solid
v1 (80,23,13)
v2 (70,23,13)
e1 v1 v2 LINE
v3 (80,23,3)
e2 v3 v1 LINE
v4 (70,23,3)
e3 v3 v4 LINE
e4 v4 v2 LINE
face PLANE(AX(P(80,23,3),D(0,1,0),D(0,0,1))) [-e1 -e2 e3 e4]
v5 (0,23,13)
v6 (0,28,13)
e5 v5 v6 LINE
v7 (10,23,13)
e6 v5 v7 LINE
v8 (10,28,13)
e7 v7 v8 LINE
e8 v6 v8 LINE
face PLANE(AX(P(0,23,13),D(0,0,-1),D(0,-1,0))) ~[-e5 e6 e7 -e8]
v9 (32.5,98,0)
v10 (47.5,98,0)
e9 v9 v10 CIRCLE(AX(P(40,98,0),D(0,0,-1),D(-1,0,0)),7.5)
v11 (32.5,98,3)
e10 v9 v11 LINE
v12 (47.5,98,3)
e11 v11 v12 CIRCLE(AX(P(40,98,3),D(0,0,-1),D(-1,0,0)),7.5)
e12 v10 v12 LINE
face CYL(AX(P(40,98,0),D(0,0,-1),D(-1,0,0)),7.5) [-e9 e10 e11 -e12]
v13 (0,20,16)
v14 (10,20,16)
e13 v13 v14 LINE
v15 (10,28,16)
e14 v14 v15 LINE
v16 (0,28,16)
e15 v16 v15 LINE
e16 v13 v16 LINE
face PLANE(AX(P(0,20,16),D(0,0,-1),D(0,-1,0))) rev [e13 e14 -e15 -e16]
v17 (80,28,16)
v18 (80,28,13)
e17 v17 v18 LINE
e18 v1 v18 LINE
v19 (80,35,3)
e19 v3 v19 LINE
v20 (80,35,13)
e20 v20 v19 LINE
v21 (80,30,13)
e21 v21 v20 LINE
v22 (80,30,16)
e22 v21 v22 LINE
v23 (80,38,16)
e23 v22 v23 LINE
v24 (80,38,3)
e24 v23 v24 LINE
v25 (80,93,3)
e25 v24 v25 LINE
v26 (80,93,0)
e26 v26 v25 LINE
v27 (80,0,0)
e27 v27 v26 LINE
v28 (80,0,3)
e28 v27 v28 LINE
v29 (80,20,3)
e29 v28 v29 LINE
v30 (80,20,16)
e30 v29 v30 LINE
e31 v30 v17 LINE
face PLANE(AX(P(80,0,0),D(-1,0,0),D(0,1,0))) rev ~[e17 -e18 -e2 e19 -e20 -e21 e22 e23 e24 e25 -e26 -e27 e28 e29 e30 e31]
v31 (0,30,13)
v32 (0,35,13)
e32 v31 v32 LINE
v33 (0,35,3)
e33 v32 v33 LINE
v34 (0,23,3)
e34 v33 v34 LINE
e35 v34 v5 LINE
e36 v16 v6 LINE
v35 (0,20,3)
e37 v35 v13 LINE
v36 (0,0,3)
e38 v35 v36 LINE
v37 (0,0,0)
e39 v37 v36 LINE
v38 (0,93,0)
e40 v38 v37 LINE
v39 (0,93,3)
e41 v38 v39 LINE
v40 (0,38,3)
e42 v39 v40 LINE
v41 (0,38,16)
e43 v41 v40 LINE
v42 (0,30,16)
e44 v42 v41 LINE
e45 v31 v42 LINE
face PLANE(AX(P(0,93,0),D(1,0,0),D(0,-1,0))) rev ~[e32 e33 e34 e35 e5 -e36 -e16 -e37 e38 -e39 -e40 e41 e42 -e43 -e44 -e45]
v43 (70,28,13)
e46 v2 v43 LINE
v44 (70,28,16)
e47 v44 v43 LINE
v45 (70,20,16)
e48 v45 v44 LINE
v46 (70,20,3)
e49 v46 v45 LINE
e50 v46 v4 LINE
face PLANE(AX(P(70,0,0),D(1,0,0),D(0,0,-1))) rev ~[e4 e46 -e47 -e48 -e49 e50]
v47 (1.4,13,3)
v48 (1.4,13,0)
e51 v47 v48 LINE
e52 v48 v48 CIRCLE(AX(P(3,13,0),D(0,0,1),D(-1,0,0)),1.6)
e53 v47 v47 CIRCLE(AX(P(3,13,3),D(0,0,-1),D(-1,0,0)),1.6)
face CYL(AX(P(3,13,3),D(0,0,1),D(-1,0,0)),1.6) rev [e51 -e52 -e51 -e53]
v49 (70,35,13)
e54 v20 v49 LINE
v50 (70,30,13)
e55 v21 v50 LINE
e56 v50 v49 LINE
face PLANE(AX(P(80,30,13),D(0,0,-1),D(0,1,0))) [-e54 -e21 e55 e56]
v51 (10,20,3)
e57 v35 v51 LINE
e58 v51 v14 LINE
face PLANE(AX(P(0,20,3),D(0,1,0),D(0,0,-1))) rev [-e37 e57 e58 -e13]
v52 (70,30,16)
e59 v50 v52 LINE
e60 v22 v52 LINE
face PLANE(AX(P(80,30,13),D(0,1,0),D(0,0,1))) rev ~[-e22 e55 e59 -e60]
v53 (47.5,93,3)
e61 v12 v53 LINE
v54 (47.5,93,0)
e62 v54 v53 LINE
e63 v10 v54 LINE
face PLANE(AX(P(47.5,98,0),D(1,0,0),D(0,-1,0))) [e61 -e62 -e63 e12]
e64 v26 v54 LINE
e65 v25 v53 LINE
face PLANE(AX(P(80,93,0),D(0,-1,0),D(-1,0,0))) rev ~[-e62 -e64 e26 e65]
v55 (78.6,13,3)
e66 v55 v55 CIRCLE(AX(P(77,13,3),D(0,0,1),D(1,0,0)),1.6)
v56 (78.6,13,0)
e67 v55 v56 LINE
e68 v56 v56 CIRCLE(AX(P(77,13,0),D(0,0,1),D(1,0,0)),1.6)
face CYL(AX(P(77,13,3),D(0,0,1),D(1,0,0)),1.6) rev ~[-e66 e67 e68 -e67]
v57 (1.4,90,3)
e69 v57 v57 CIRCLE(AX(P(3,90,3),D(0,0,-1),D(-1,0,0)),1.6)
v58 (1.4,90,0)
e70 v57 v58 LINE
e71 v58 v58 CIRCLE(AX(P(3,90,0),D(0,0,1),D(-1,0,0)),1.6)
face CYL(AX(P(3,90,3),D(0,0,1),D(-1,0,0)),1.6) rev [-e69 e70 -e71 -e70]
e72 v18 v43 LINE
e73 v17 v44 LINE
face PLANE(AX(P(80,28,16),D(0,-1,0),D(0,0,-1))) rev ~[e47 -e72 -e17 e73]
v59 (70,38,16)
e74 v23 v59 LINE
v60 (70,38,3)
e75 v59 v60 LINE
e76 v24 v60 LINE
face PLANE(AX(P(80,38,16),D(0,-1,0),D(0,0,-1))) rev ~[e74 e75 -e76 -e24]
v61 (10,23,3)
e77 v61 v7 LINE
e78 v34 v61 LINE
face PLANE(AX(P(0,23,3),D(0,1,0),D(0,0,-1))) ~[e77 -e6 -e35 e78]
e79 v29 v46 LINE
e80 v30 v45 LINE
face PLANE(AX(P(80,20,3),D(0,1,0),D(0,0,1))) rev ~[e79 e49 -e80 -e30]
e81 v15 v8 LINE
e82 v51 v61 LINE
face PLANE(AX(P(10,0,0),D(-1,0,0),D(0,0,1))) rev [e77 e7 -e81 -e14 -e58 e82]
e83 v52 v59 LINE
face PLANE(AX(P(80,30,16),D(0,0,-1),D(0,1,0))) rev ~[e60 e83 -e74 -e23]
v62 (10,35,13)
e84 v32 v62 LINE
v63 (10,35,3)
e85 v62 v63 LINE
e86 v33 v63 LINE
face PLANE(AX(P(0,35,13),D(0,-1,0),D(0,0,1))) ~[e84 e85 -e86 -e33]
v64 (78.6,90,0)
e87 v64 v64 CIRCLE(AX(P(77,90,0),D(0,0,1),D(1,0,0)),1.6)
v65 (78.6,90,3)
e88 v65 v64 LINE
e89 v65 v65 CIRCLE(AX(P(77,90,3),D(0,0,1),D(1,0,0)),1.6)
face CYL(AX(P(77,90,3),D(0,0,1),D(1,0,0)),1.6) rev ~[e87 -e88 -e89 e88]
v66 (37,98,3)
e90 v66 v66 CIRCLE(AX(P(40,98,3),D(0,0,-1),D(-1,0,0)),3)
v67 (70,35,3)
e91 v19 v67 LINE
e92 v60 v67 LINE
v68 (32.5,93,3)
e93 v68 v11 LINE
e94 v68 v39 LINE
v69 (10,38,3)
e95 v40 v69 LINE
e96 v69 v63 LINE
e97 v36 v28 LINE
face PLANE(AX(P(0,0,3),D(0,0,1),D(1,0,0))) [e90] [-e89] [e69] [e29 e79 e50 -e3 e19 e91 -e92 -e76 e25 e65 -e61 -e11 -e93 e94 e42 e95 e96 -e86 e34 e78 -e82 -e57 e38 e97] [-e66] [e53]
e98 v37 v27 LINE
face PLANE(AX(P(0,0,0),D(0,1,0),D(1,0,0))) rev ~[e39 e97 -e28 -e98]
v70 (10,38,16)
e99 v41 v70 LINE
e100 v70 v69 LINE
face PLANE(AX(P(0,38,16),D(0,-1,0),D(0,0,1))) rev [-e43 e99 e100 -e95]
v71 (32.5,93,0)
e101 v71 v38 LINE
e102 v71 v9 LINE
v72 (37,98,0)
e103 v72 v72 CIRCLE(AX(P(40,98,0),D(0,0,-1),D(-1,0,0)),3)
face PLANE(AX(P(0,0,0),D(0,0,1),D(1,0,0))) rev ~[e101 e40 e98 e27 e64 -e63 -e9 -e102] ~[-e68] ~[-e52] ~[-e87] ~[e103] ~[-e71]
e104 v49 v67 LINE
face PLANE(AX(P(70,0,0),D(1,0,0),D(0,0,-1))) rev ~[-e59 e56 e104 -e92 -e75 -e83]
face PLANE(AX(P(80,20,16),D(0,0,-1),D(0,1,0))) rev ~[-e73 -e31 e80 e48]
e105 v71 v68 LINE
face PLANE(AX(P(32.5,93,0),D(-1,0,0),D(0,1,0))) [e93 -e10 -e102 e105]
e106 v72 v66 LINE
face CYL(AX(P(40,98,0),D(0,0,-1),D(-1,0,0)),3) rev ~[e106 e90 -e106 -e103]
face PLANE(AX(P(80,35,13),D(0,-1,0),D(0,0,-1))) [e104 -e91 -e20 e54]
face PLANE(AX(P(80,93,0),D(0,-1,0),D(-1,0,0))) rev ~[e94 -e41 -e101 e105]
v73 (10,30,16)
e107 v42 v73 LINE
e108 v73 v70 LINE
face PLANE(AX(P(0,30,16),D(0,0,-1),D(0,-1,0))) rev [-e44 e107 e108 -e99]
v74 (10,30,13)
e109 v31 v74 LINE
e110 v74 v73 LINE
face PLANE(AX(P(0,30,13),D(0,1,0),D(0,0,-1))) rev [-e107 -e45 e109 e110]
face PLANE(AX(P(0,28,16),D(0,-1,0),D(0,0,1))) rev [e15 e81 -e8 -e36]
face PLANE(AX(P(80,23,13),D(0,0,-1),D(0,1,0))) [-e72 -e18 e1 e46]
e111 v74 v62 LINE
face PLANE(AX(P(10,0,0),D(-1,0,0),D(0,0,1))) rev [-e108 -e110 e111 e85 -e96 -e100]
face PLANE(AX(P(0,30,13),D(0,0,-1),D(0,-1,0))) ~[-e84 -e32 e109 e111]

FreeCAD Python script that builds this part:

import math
import FreeCAD as App
import Part
import Sketcher
Q = App.Units.Quantity


def add_polygon(sketch, points):
    """Adds a closed chain of lines whose ends are joined by coincident constraints."""
    first, n = sketch.GeometryCount, len(points)
    for a, b in zip(points, points[1:] + points[:1]):
        sketch.addGeometry(Part.LineSegment(App.Vector(*a, 0), App.Vector(*b, 0)), False)
    for i in range(n):
        sketch.addConstraint(Sketcher.Constraint("Coincident", first + i, 2, first + (i + 1) % n, 1))

doc = App.newDocument("Part")
params = doc.addObject("Spreadsheet::Sheet", "Params")
for row, (alias, value) in enumerate([
    ("sketch1_width", "80 mm"),
    ("sketch1_height", "93 mm"),
    ("pad1_length", "3 mm"),
    ("sketch2_width", "3 mm"),
    ("sketch2_width2", "5 mm"),
    ("sketch2_height", "10 mm"),
    ("pad2_length", "10 mm"),
    ("sketch3_diameter", "3.2 mm"),
    ("sketch4_diameter", "6 mm"),
    ("sketch4_radius", "7.5 mm"),
    ("sketch4_height", "5 mm"),
    ("pad3_length", "3 mm"),
], start=1):
    params.set(f"A{row}", alias)
    params.set(f"B{row}", "=" + value)
    params.setAlias(f"B{row}", alias)

body = doc.addObject("PartDesign::Body", "Body")

# Sketch on XY plane
sketch1 = body.newObject("Sketcher::SketchObject", "Sketch")
sketch1.AttachmentSupport = (doc.getObject("XY_Plane"), [""])
sketch1.MapMode = "FlatFace"
add_polygon(sketch1, [(0, 93), (0, 0), (80, 0), (80, 93)])  # lines 0-3
sketch1.addConstraint(Sketcher.Constraint("Vertical", 0))
sketch1.addConstraint(Sketcher.Constraint("Horizontal", 1))
sketch1.addConstraint(Sketcher.Constraint("Vertical", 2))
sketch1.addConstraint(Sketcher.Constraint("Horizontal", 3))
sketch1.addConstraint(Sketcher.Constraint("Coincident", 0, 2, -1, 1))
sketch1.addConstraint(Sketcher.Constraint("DistanceX", 1, 1, 1, 2, Q("80 mm")))
sketch1.addConstraint(Sketcher.Constraint("DistanceY", 0, 2, 0, 1, Q("93 mm")))
sketch1.setExpression("Constraints[9]", "Params.sketch1_width")
sketch1.setExpression("Constraints[10]", "Params.sketch1_height")
pad1 = body.newObject("PartDesign::Pad", "Pad")
pad1.Profile = sketch1
pad1.setExpression("Length", "Params.pad1_length")

# Sketch on YZ plane
sketch2 = body.newObject("Sketcher::SketchObject", "Sketch001")
sketch2.AttachmentSupport = (doc.getObject("YZ_Plane"), [""])
sketch2.MapMode = "FlatFace"
sketch2.AttachmentOffset = App.Placement(App.Vector(0, 0, 80), App.Rotation())
add_polygon(sketch2, [(20, 16), (20, 3), (23, 3), (23, 13), (28, 13), (28, 16)])  # lines 0-5
add_polygon(sketch2, [(38, 3), (38, 16), (30, 16), (30, 13), (35, 13), (35, 3)])  # lines 6-11
sketch2.addConstraint(Sketcher.Constraint("Vertical", 0))
sketch2.addConstraint(Sketcher.Constraint("Horizontal", 1))
sketch2.addConstraint(Sketcher.Constraint("Vertical", 2))
sketch2.addConstraint(Sketcher.Constraint("Horizontal", 3))
sketch2.addConstraint(Sketcher.Constraint("Vertical", 4))
sketch2.addConstraint(Sketcher.Constraint("Horizontal", 5))
sketch2.addConstraint(Sketcher.Constraint("Vertical", 6))
sketch2.addConstraint(Sketcher.Constraint("Horizontal", 7))
sketch2.addConstraint(Sketcher.Constraint("Vertical", 8))
sketch2.addConstraint(Sketcher.Constraint("Horizontal", 9))
sketch2.addConstraint(Sketcher.Constraint("Vertical", 10))
sketch2.addConstraint(Sketcher.Constraint("Horizontal", 11))
sketch2.addConstraint(Sketcher.Constraint("Horizontal", 5, 2, 6, 2))
sketch2.addConstraint(Sketcher.Constraint("Horizontal", 3, 2, 8, 2))
sketch2.addConstraint(Sketcher.Constraint("Horizontal", 1, 2, 10, 2))
sketch2.addConstraint(Sketcher.Constraint("Equal", 5, 7))
sketch2.addConstraint(Sketcher.Constraint("Equal", 3, 9))
sketch2.addConstraint(Sketcher.Constraint("Equal", 11, 4))
sketch2.addConstraint(Sketcher.Constraint("DistanceX", 1, 1, 1, 2, Q("3 mm")))
sketch2.addConstraint(Sketcher.Constraint("DistanceX", 3, 1, 3, 2, Q("5 mm")))
sketch2.addConstraint(Sketcher.Constraint("DistanceY", 2, 1, 2, 2, Q("10 mm")))
sketch2.addConstraint(Sketcher.Constraint("DistanceX", -1, 1, 0, 2, Q("20 mm")))
sketch2.addConstraint(Sketcher.Constraint("DistanceY", -1, 1, 0, 2, Q("3 mm")))
sketch2.addConstraint(Sketcher.Constraint("DistanceX", 4, 2, 6, 2, Q("10 mm")))
sketch2.setExpression("Constraints[30]", "Params.sketch2_width")
sketch2.setExpression("Constraints[31]", "Params.sketch2_width2")
sketch2.setExpression("Constraints[32]", "Params.sketch2_height")
pad2 = body.newObject("PartDesign::Pad", "Pad001")
pad2.Profile = sketch2
pad2.setExpression("Length", "Params.pad2_length")
pad2.Reversed = True
doc.recompute()

datumplane = body.newObject("PartDesign::Plane", "DatumPlane")
datumplane.AttachmentSupport = (doc.getObject("YZ_Plane"), [""])
datumplane.MapMode = "FlatFace"
datumplane.AttachmentOffset = App.Placement(App.Vector(0, 0, 40), App.Rotation())
mirrored = body.newObject("PartDesign::Mirrored", "Mirrored")
mirrored.Originals = [pad2]
mirrored.MirrorPlane = (datumplane, [""])
body.Tip = mirrored

# Sketch on XY plane
sketch3 = body.newObject("Sketcher::SketchObject", "Sketch002")
sketch3.AttachmentSupport = (doc.getObject("XY_Plane"), [""])
sketch3.MapMode = "FlatFace"
sketch3.AttachmentOffset = App.Placement(App.Vector(0, 0, 3), App.Rotation())
sketch3.addGeometry(Part.Circle(App.Vector(77, 13, 0), App.Vector(0, 0, 1), 1.6), False)
sketch3.addGeometry(Part.Circle(App.Vector(77, 90, 0), App.Vector(0, 0, 1), 1.6), False)
sketch3.addConstraint(Sketcher.Constraint("Equal", 0, 1))
sketch3.addConstraint(Sketcher.Constraint("Vertical", 0, 3, 1, 3))
sketch3.addConstraint(Sketcher.Constraint("Diameter", 0, Q("3.2 mm")))
sketch3.addConstraint(Sketcher.Constraint("DistanceY", -1, 1, 0, 3, Q("13 mm")))
sketch3.addConstraint(Sketcher.Constraint("DistanceX", -1, 1, 0, 3, Q("77 mm")))
sketch3.addConstraint(Sketcher.Constraint("DistanceY", -1, 1, 1, 3, Q("90 mm")))
sketch3.setExpression("Constraints[2]", "Params.sketch3_diameter")
pocket1 = body.newObject("PartDesign::Pocket", "Pocket")
pocket1.Profile = sketch3
pocket1.Type = "ThroughAll"
doc.recompute()

datumplane2 = body.newObject("PartDesign::Plane", "DatumPlane001")
datumplane2.AttachmentSupport = (doc.getObject("YZ_Plane"), [""])
datumplane2.MapMode = "FlatFace"
datumplane2.AttachmentOffset = App.Placement(App.Vector(0, 0, 40), App.Rotation())
mirrored2 = body.newObject("PartDesign::Mirrored", "Mirrored001")
mirrored2.Originals = [pad2, pocket1]
mirrored2.MirrorPlane = (datumplane2, [""])
body.Tip = mirrored2

# Sketch on XY plane
sketch4 = body.newObject("Sketcher::SketchObject", "Sketch003")
sketch4.AttachmentSupport = (doc.getObject("XY_Plane"), [""])
sketch4.MapMode = "FlatFace"
sketch4.addGeometry(Part.LineSegment(App.Vector(47.5, 98, 0), App.Vector(47.5, 93, 0)), False)
sketch4.addGeometry(Part.LineSegment(App.Vector(47.5, 93, 0), App.Vector(32.5, 93, 0)), False)
sketch4.addGeometry(Part.LineSegment(App.Vector(32.5, 93, 0), App.Vector(32.5, 98, 0)), False)
sketch4.addGeometry(Part.ArcOfCircle(Part.Circle(App.Vector(40, 98, 0), App.Vector(0, 0, 1), 7.5), math.radians(0), math.radians(180)), False)
sketch4.addGeometry(Part.Circle(App.Vector(40, 98, 0), App.Vector(0, 0, 1), 3), False)
sketch4.addConstraint(Sketcher.Constraint("Coincident", 0, 2, 1, 1))
sketch4.addConstraint(Sketcher.Constraint("Coincident", 1, 2, 2, 1))
sketch4.addConstraint(Sketcher.Constraint("Tangent", 2, 2, 3, 2))
sketch4.addConstraint(Sketcher.Constraint("Tangent", 3, 1, 0, 1))
sketch4.addConstraint(Sketcher.Constraint("Vertical", 0))
sketch4.addConstraint(Sketcher.Constraint("Horizontal", 1))
sketch4.addConstraint(Sketcher.Constraint("Vertical", 2))
sketch4.addConstraint(Sketcher.Constraint("Coincident", 4, 3, 3, 3))
sketch4.addConstraint(Sketcher.Constraint("Diameter", 4, Q("6 mm")))
sketch4.addConstraint(Sketcher.Constraint("Radius", 3, Q("7.5 mm")))
sketch4.addConstraint(Sketcher.Constraint("DistanceY", 0, 2, 0, 1, Q("5 mm")))
sketch4.addConstraint(Sketcher.Constraint("DistanceX", -1, 1, 3, 3, Q("40 mm")))
sketch4.addConstraint(Sketcher.Constraint("DistanceY", -1, 1, 3, 3, Q("98 mm")))
sketch4.setExpression("Constraints[8]", "Params.sketch4_diameter")
sketch4.setExpression("Constraints[9]", "Params.sketch4_radius")
sketch4.setExpression("Constraints[10]", "Params.sketch4_height")
pad3 = body.newObject("PartDesign::Pad", "Pad002")
pad3.Profile = sketch4
pad3.setExpression("Length", "Params.pad3_length")

doc.recompute()
